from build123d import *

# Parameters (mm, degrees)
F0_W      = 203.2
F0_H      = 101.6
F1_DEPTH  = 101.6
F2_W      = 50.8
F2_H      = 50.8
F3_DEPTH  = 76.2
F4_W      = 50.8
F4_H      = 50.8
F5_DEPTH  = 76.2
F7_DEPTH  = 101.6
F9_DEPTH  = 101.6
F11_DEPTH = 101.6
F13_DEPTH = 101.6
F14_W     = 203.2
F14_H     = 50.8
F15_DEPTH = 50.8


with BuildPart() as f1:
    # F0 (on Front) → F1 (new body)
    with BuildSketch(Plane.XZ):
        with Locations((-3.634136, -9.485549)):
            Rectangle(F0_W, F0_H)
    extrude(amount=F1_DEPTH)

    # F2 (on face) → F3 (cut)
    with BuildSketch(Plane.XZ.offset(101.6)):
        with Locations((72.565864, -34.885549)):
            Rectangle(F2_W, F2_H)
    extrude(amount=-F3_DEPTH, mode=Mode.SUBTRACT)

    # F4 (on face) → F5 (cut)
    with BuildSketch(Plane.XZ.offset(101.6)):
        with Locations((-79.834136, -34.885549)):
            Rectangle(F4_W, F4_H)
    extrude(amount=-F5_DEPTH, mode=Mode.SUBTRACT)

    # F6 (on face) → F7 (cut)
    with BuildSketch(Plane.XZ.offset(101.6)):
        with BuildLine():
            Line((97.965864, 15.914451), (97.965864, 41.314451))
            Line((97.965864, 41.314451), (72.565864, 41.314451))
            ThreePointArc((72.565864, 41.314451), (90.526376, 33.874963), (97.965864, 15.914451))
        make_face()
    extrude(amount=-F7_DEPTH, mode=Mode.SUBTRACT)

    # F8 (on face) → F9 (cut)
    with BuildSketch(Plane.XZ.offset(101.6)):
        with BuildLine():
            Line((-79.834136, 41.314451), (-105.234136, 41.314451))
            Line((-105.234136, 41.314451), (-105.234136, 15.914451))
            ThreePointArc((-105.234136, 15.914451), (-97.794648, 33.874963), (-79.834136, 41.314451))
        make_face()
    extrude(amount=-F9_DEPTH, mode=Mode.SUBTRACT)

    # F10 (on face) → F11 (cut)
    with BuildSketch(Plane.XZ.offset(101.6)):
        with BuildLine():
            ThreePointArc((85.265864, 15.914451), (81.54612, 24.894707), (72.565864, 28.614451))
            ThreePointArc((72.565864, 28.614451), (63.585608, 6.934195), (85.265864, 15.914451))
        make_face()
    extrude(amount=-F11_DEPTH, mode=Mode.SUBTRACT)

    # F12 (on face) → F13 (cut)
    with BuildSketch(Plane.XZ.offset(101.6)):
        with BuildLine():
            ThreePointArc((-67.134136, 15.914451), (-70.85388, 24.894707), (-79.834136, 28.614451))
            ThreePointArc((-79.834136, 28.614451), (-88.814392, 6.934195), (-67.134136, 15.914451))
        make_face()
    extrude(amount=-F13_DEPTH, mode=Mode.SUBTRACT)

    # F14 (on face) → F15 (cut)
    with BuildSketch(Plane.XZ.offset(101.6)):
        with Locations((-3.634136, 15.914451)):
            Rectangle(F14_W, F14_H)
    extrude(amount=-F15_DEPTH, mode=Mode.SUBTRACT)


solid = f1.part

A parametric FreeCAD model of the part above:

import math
import FreeCAD as App
import Part
import Sketcher
from FreeCAD import Vector
Q = App.Units.Quantity

doc = App.newDocument("Part")
body = doc.addObject("PartDesign::Body", "Body")

sketch1 = body.newObject("Sketcher::SketchObject", "Sketch")
sketch1.AttachmentSupport = (doc.getObject("XZ_Plane"), [""])
sketch1.MapMode = "FlatFace"
sketch1.addGeometry([
    Part.LineSegment(Vector(-105, 41, 0), Vector(-105, -60, 0)),
    Part.LineSegment(Vector(-105, -60, 0), Vector(98, -60, 0)),
    Part.LineSegment(Vector(98, -60, 0), Vector(98, 41, 0)),
    Part.LineSegment(Vector(98, 41, 0), Vector(-105, 41, 0)),
], False)
sketch1.addConstraint([
    Sketcher.Constraint("Coincident", 0, 2, 1, 1),
    Sketcher.Constraint("Coincident", 1, 2, 2, 1),
    Sketcher.Constraint("Coincident", 2, 2, 3, 1),
    Sketcher.Constraint("Coincident", 3, 2, 0, 1),
    Sketcher.Constraint("Vertical", 0),
    Sketcher.Constraint("Horizontal", 1),
    Sketcher.Constraint("Vertical", 2),
    Sketcher.Constraint("Horizontal", 3),
    Sketcher.Constraint("DistanceX", 1, 1, 1, 2, Q("8 in")),
    Sketcher.Constraint("DistanceY", 0, 2, 0, 1, Q("4 in")),
    Sketcher.Constraint("DistanceY", 0, 2, -1, 1, Q("60.285549 mm")),
    Sketcher.Constraint("DistanceX", 0, 2, -1, 1, Q("105.234136 mm")),
])
pad1 = body.newObject("PartDesign::Pad", "Pad")
pad1.Profile = sketch1
pad1.Length = Q("4 in")

sketch2 = body.newObject("Sketcher::SketchObject", "Sketch001")
sketch2.AttachmentSupport = (doc.getObject("XZ_Plane"), [""])
sketch2.MapMode = "FlatFace"
sketch2.AttachmentOffset = App.Placement(Vector(0, 0, 4 * 25.4), App.Rotation())
sketch2.addGeometry([
    Part.LineSegment(Vector(47, -9, 0), Vector(47, -60, 0)),
    Part.LineSegment(Vector(47, -60, 0), Vector(98, -60, 0)),
    Part.LineSegment(Vector(98, -60, 0), Vector(98, -9, 0)),
    Part.LineSegment(Vector(98, -9, 0), Vector(47, -9, 0)),
], False)
sketch2.addConstraint([
    Sketcher.Constraint("Coincident", 0, 2, 1, 1),
    Sketcher.Constraint("Coincident", 1, 2, 2, 1),
    Sketcher.Constraint("Coincident", 2, 2, 3, 1),
    Sketcher.Constraint("Coincident", 3, 2, 0, 1),
    Sketcher.Constraint("Vertical", 0),
    Sketcher.Constraint("Horizontal", 1),
    Sketcher.Constraint("Vertical", 2),
    Sketcher.Constraint("Horizontal", 3),
    Sketcher.Constraint("Equal", 3, 0),
    Sketcher.Constraint("DistanceX", 1, 1, 1, 2, Q("2 in")),
    Sketcher.Constraint("DistanceY", 0, 2, -1, 1, Q("60.285549 mm")),
    Sketcher.Constraint("DistanceX", -1, 1, 0, 2, Q("47.165864 mm")),
])
pocket1 = body.newObject("PartDesign::Pocket", "Pocket")
pocket1.Profile = sketch2
pocket1.Length = Q("3 in")

sketch3 = body.newObject("Sketcher::SketchObject", "Sketch002")
sketch3.AttachmentSupport = (doc.getObject("XZ_Plane"), [""])
sketch3.MapMode = "FlatFace"
sketch3.AttachmentOffset = App.Placement(Vector(0, 0, 4 * 25.4), App.Rotation())
sketch3.addGeometry([
    Part.LineSegment(Vector(-105, -9, 0), Vector(-105, -60, 0)),
    Part.LineSegment(Vector(-105, -60, 0), Vector(-54, -60, 0)),
    Part.LineSegment(Vector(-54, -60, 0), Vector(-54, -9, 0)),
    Part.LineSegment(Vector(-54, -9, 0), Vector(-105, -9, 0)),
], False)
sketch3.addConstraint([
    Sketcher.Constraint("Coincident", 0, 2, 1, 1),
    Sketcher.Constraint("Coincident", 1, 2, 2, 1),
    Sketcher.Constraint("Coincident", 2, 2, 3, 1),
    Sketcher.Constraint("Coincident", 3, 2, 0, 1),
    Sketcher.Constraint("Vertical", 0),
    Sketcher.Constraint("Horizontal", 1),
    Sketcher.Constraint("Vertical", 2),
    Sketcher.Constraint("Horizontal", 3),
    Sketcher.Constraint("Equal", 3, 0),
    Sketcher.Constraint("DistanceX", 1, 1, 1, 2, Q("2 in")),
    Sketcher.Constraint("DistanceY", 0, 2, -1, 1, Q("60.285549 mm")),
    Sketcher.Constraint("DistanceX", 0, 2, -1, 1, Q("105.234136 mm")),
])
pocket2 = body.newObject("PartDesign::Pocket", "Pocket001")
pocket2.Profile = sketch3
pocket2.Length = Q("3 in")

sketch4 = body.newObject("Sketcher::SketchObject", "Sketch003")
sketch4.AttachmentSupport = (doc.getObject("XZ_Plane"), [""])
sketch4.MapMode = "FlatFace"
sketch4.AttachmentOffset = App.Placement(Vector(0, 0, 4 * 25.4), App.Rotation())
sketch4.addGeometry([
    Part.LineSegment(Vector(98, 16, 0), Vector(98, 41, 0)),
    Part.LineSegment(Vector(98, 41, 0), Vector(73, 41, 0)),
    Part.ArcOfCircle(Part.Circle(Vector(73, 16, 0), Vector(0, 0, 1), 25), math.radians(0), math.radians(90)),
], False)
sketch4.addConstraint([
    Sketcher.Constraint("Coincident", 0, 2, 1, 1),
    Sketcher.Constraint("Tangent", 1, 2, 2, 2),
    Sketcher.Constraint("Tangent", 2, 1, 0, 1),
    Sketcher.Constraint("Vertical", 0),
    Sketcher.Constraint("Horizontal", 1),
    Sketcher.Constraint("Radius", 2, Q("1 in")),
    Sketcher.Constraint("DistanceY", -1, 1, 2, 3, Q("15.91445 mm")),
    Sketcher.Constraint("DistanceX", -1, 1, 2, 3, Q("72.565863 mm")),
])
pocket3 = body.newObject("PartDesign::Pocket", "Pocket002")
pocket3.Profile = sketch4
pocket3.Length = Q("4 in")

sketch5 = body.newObject("Sketcher::SketchObject", "Sketch004")
sketch5.AttachmentSupport = (doc.getObject("XZ_Plane"), [""])
sketch5.MapMode = "FlatFace"
sketch5.AttachmentOffset = App.Placement(Vector(0, 0, 4 * 25.4), App.Rotation())
sketch5.addGeometry([
    Part.LineSegment(Vector(-80, 41, 0), Vector(-105, 41, 0)),
    Part.LineSegment(Vector(-105, 41, 0), Vector(-105, 16, 0)),
    Part.ArcOfCircle(Part.Circle(Vector(-80, 16, 0), Vector(0, 0, 1), 25), math.radians(90), math.radians(180)),
], False)
sketch5.addConstraint([
    Sketcher.Constraint("Coincident", 0, 2, 1, 1),
    Sketcher.Constraint("Tangent", 1, 2, 2, 2),
    Sketcher.Constraint("Tangent", 2, 1, 0, 1),
    Sketcher.Constraint("Horizontal", 0),
    Sketcher.Constraint("Vertical", 1),
    Sketcher.Constraint("Radius", 2, Q("1 in")),
    Sketcher.Constraint("DistanceY", -1, 1, 2, 3, Q("15.91445 mm")),
    Sketcher.Constraint("DistanceX", 2, 3, -1, 1, Q("79.834135 mm")),
])
pocket4 = body.newObject("PartDesign::Pocket", "Pocket003")
pocket4.Profile = sketch5
pocket4.Length = Q("4 in")

sketch6 = body.newObject("Sketcher::SketchObject", "Sketch005")
sketch6.AttachmentSupport = (doc.getObject("XZ_Plane"), [""])
sketch6.MapMode = "FlatFace"
sketch6.AttachmentOffset = App.Placement(Vector(0, 0, 4 * 25.4), App.Rotation())
sketch6.addGeometry([
    Part.ArcOfCircle(Part.Circle(Vector(73, 16, 0), Vector(0, 0, 1), 13), math.radians(0), math.radians(90)),
    Part.ArcOfCircle(Part.Circle(Vector(73, 16, 0), Vector(0, 0, 1), 13), math.radians(90), math.radians(360)),
], False)
sketch6.addConstraint([
    Sketcher.Constraint("Tangent", 0, 1, 1, 2),
    Sketcher.Constraint("Coincident", 1, 1, 0, 2),
    Sketcher.Constraint("Horizontal", 1, 3, 0, 1),
    Sketcher.Constraint("Vertical", 0, 3, 1, 1),
    Sketcher.Constraint("Radius", 0, Q("0.5 in")),
    Sketcher.Constraint("DistanceY", -1, 1, 0, 3, Q("15.914451 mm")),
    Sketcher.Constraint("DistanceX", -1, 1, 0, 3, Q("72.565864 mm")),
])
pocket5 = body.newObject("PartDesign::Pocket", "Pocket004")
pocket5.Profile = sketch6
pocket5.Length = Q("4 in")

sketch7 = body.newObject("Sketcher::SketchObject", "Sketch006")
sketch7.AttachmentSupport = (doc.getObject("XZ_Plane"), [""])
sketch7.MapMode = "FlatFace"
sketch7.AttachmentOffset = App.Placement(Vector(0, 0, 4 * 25.4), App.Rotation())
sketch7.addGeometry([
    Part.ArcOfCircle(Part.Circle(Vector(-80, 16, 0), Vector(0, 0, 1), 13), math.radians(0), math.radians(90)),
    Part.ArcOfCircle(Part.Circle(Vector(-80, 16, 0), Vector(0, 0, 1), 13), math.radians(90), math.radians(360)),
], False)
sketch7.addConstraint([
    Sketcher.Constraint("Tangent", 0, 1, 1, 2),
    Sketcher.Constraint("Coincident", 1, 1, 0, 2),
    Sketcher.Constraint("Horizontal", 1, 3, 0, 1),
    Sketcher.Constraint("Vertical", 0, 3, 1, 1),
    Sketcher.Constraint("Radius", 0, Q("0.5 in")),
    Sketcher.Constraint("DistanceY", -1, 1, 0, 3, Q("15.914451 mm")),
    Sketcher.Constraint("DistanceX", 0, 3, -1, 1, Q("79.834136 mm")),
])
pocket6 = body.newObject("PartDesign::Pocket", "Pocket005")
pocket6.Profile = sketch7
pocket6.Length = Q("4 in")

sketch8 = body.newObject("Sketcher::SketchObject", "Sketch007")
sketch8.AttachmentSupport = (doc.getObject("XZ_Plane"), [""])
sketch8.MapMode = "FlatFace"
sketch8.AttachmentOffset = App.Placement(Vector(0, 0, 4 * 25.4), App.Rotation())
sketch8.addGeometry([
    Part.LineSegment(Vector(-105, 41, 0), Vector(-105, -9, 0)),
    Part.LineSegment(Vector(-105, -9, 0), Vector(98, -9, 0)),
    Part.LineSegment(Vector(98, -9, 0), Vector(98, 41, 0)),
    Part.LineSegment(Vector(98, 41, 0), Vector(-105, 41, 0)),
], False)
sketch8.addConstraint([
    Sketcher.Constraint("Coincident", 0, 2, 1, 1),
    Sketcher.Constraint("Coincident", 1, 2, 2, 1),
    Sketcher.Constraint("Coincident", 2, 2, 3, 1),
    Sketcher.Constraint("Coincident", 3, 2, 0, 1),
    Sketcher.Constraint("Vertical", 0),
    Sketcher.Constraint("Horizontal", 1),
    Sketcher.Constraint("Vertical", 2),
    Sketcher.Constraint("Horizontal", 3),
    Sketcher.Constraint("DistanceX", 1, 1, 1, 2, Q("8 in")),
    Sketcher.Constraint("DistanceY", 0, 2, 0, 1, Q("2 in")),
    Sketcher.Constraint("DistanceY", 0, 2, -1, 1, Q("9.485549 mm")),
    Sketcher.Constraint("DistanceX", 0, 2, -1, 1, Q("105.234136 mm")),
])
pocket7 = body.newObject("PartDesign::Pocket", "Pocket006")
pocket7.Profile = sketch8
pocket7.Length = Q("2 in")

doc.recompute()
